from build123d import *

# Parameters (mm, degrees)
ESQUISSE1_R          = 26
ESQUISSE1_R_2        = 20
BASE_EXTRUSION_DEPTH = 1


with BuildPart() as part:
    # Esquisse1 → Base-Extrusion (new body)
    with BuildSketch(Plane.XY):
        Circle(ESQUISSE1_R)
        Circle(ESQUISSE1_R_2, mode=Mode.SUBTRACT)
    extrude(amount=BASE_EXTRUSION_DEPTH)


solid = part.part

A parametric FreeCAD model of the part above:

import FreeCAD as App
import Part
import Sketcher

V = App.Vector
Q = App.Units.Quantity

doc = App.newDocument("Part")
body = doc.addObject("PartDesign::Body", "Body")

# Sketch on XY plane
sketch1 = body.newObject("Sketcher::SketchObject", "Sketch")
sketch1.AttachmentSupport = (doc.getObject("XY_Plane"), [""])
sketch1.MapMode = "FlatFace"
sketch1.addGeometry([
    Part.Circle(V(0, 0, 0), V(0, 0, 1), 26),
    Part.Circle(V(0, 0, 0), V(0, 0, 1), 20),
], False)
sketch1.addConstraint([
    Sketcher.Constraint("Coincident", 0, 3, -1, 1),
    Sketcher.Constraint("Coincident", 1, 3, -1, 1),
    Sketcher.Constraint("Diameter", 0, Q("52 mm")),
    Sketcher.Constraint("Diameter", 1, Q("40 mm")),
])
pad1 = body.newObject("PartDesign::Pad", "Pad")
pad1.Profile = sketch1
pad1.Length = 1

doc.recompute()
